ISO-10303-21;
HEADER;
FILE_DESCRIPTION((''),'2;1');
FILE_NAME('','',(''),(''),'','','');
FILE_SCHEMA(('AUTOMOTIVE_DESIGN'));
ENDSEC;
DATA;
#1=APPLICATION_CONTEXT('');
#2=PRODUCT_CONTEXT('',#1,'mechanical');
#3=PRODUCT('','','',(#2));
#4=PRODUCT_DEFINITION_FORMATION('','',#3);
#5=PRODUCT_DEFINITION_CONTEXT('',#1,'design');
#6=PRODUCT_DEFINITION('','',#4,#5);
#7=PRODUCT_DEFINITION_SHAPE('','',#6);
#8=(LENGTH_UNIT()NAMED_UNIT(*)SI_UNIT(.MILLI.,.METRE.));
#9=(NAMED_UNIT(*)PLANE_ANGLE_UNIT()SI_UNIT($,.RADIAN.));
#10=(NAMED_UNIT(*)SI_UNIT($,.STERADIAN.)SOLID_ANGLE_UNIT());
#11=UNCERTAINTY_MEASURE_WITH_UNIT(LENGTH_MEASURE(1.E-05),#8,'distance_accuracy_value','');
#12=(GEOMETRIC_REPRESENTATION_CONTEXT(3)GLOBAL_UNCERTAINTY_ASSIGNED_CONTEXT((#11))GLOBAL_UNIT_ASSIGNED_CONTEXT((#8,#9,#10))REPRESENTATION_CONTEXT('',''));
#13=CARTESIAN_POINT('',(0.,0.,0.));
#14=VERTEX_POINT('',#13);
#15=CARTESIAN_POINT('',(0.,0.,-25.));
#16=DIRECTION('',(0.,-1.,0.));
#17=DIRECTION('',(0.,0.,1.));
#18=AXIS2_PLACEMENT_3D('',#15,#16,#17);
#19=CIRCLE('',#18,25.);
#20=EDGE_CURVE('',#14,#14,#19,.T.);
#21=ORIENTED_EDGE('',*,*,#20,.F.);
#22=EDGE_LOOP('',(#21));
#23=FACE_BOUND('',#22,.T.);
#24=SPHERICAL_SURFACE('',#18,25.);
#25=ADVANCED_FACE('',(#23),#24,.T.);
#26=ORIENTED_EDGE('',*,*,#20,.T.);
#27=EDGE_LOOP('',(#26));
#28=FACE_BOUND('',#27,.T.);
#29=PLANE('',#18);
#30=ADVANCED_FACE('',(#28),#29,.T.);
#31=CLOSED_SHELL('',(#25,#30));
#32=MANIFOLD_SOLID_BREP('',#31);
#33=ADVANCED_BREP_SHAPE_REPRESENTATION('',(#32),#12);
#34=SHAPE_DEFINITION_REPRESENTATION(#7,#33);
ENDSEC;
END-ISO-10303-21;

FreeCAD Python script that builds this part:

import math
import FreeCAD as App
import Part
import Sketcher
Q = App.Units.Quantity

doc = App.newDocument("Part")
body = doc.addObject("PartDesign::Body", "Body")

# Sketch on XZ plane
sketch1 = body.newObject("Sketcher::SketchObject", "Sketch")
sketch1.AttachmentSupport = (doc.getObject("XZ_Plane"), [""])
sketch1.MapMode = "FlatFace"
sketch1.addGeometry([
    Part.LineSegment(App.Vector(0, -50, 0), App.Vector(0, 0, 0)),
    Part.ArcOfCircle(Part.Circle(App.Vector(0, -25, 0), App.Vector(0, 0, 1), 25), math.radians(-90), math.radians(90)),
], False)
sketch1.addConstraint([
    Sketcher.Constraint("Coincident", 0, 1, 1, 1),
    Sketcher.Constraint("Coincident", 1, 2, 0, 2),
    Sketcher.Constraint("Vertical", 0),
    Sketcher.Constraint("Coincident", 1, 2, -1, 1),
    Sketcher.Constraint("PointOnObject", 1, 3, -2),
    Sketcher.Constraint("Radius", 1, Q("25 mm")),
])
revolution = body.newObject("PartDesign::Revolution", "Revolution")
revolution.Profile = sketch1
revolution.ReferenceAxis = (sketch1, ["V_Axis"])
revolution.Angle = 180

doc.recompute()
